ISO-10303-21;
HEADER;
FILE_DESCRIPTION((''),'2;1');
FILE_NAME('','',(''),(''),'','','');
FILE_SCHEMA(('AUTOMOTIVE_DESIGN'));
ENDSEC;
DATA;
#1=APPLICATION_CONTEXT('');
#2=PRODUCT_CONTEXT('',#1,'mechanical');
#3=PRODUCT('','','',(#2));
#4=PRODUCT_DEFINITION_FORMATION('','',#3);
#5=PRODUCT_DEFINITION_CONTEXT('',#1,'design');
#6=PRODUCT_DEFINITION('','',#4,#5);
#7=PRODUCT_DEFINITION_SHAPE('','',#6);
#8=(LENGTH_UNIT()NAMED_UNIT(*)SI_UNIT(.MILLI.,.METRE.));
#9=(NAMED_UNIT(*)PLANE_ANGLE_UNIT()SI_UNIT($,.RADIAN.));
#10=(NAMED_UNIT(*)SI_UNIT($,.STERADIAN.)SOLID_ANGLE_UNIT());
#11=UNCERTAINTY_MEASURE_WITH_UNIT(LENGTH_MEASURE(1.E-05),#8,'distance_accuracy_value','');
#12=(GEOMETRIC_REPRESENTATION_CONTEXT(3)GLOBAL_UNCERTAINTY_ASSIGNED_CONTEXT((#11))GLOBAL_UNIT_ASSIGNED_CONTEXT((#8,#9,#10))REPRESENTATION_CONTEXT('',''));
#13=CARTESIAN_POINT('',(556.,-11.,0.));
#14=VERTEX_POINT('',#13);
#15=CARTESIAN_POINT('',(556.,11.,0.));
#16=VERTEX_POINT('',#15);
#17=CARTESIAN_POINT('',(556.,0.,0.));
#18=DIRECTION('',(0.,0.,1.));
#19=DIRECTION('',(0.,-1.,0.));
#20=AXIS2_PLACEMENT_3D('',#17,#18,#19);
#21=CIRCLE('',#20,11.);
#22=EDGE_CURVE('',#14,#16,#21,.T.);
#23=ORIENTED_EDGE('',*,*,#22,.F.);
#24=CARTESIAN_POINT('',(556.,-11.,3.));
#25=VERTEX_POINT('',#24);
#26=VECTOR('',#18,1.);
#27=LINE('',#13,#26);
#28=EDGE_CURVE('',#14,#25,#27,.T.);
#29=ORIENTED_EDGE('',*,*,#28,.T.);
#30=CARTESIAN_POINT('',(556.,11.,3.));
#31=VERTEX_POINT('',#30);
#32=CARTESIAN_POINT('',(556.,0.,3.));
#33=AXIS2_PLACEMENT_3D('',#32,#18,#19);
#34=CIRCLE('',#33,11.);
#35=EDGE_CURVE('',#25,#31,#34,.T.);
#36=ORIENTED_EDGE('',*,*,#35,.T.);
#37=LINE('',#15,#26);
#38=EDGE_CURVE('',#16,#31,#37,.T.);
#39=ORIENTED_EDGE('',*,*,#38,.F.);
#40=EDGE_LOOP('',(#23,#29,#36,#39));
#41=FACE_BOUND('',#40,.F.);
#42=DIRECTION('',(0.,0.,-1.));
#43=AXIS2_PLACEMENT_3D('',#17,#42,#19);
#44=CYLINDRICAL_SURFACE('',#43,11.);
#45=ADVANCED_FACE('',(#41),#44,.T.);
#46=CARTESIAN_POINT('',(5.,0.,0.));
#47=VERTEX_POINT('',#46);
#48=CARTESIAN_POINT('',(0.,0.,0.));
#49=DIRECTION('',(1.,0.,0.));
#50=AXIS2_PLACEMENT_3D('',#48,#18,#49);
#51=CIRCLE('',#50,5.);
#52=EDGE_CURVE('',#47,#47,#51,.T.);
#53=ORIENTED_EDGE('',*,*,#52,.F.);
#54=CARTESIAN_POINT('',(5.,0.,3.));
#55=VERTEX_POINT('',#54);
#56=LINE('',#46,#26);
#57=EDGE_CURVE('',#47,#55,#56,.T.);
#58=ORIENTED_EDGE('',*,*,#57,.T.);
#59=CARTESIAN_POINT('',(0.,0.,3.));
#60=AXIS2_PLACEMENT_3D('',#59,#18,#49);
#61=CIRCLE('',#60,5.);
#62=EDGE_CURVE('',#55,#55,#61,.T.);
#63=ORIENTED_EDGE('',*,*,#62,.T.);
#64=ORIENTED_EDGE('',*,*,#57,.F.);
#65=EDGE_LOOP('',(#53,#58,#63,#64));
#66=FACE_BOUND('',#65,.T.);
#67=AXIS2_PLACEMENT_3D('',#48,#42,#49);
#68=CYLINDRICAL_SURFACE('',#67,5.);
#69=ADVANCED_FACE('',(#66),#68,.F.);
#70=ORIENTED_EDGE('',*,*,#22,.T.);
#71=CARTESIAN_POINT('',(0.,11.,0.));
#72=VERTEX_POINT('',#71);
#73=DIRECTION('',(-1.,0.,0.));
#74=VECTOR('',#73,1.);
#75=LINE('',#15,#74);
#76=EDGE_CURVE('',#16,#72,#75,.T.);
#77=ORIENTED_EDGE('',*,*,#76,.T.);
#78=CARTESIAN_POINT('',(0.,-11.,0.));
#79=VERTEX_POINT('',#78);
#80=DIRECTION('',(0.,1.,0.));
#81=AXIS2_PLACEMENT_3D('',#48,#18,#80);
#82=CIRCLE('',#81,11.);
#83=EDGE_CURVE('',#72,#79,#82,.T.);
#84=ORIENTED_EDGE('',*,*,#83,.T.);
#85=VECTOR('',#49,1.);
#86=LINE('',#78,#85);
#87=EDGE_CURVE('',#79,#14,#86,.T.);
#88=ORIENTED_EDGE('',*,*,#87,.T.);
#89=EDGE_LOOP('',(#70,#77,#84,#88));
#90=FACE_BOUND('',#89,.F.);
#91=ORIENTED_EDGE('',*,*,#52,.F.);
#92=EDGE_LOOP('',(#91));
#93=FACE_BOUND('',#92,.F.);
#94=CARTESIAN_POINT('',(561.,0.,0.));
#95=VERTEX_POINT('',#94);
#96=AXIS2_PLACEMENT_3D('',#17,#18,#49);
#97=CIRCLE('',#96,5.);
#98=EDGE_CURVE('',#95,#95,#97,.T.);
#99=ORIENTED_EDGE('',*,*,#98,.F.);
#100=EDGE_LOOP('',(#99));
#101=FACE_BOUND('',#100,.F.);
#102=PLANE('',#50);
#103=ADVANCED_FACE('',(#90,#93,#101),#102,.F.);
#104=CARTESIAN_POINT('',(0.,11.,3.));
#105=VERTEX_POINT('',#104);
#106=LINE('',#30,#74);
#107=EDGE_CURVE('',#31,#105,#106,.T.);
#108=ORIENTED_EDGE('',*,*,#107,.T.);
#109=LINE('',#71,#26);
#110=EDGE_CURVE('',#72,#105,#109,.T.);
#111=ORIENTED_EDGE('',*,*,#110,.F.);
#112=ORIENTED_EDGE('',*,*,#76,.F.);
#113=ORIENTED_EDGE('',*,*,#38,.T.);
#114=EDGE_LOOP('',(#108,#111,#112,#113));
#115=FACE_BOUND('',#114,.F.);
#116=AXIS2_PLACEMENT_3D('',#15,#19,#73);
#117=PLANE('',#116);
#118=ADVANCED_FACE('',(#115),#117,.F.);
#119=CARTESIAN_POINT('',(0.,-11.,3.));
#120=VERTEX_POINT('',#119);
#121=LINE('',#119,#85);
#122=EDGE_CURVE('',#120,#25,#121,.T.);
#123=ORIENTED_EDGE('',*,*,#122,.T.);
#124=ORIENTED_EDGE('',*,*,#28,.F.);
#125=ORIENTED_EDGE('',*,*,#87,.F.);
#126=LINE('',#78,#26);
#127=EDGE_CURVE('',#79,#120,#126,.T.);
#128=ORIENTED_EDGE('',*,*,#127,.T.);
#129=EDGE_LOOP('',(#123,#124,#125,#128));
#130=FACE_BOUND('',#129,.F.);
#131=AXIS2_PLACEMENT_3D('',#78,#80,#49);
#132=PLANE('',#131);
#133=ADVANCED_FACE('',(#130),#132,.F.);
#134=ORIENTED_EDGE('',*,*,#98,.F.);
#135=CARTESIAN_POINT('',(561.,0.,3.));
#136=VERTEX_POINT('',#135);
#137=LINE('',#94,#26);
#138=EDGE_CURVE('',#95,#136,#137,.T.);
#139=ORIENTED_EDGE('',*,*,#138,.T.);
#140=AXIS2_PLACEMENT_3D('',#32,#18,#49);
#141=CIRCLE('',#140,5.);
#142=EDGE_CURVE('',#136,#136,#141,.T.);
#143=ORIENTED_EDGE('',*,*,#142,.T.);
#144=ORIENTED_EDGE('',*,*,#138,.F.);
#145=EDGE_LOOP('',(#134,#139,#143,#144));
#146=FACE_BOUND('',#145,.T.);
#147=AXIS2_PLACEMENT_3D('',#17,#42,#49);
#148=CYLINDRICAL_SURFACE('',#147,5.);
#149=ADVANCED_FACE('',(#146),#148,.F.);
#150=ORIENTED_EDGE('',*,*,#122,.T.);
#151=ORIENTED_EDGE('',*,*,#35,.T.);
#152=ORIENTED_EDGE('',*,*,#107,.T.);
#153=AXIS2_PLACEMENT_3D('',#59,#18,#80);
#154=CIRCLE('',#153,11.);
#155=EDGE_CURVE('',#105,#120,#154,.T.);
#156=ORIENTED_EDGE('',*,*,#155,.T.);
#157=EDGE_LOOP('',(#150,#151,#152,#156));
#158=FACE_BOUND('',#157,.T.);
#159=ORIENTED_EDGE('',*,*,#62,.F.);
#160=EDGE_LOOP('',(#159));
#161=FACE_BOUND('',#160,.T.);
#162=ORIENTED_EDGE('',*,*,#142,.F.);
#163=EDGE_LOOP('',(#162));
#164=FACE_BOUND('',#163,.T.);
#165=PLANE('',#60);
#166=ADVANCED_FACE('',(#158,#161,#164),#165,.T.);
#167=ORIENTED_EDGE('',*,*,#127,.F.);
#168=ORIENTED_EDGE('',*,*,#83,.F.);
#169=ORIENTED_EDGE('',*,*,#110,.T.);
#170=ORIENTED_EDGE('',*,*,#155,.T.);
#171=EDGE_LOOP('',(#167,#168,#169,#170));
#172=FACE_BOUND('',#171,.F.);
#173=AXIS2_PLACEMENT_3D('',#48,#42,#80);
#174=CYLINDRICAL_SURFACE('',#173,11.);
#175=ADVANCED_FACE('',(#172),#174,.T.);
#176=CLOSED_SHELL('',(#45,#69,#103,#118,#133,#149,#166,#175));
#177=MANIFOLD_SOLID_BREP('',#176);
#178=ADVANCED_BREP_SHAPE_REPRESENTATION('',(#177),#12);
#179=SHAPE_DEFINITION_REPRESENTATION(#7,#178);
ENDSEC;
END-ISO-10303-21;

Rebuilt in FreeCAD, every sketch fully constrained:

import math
import FreeCAD as App
import Part
import Sketcher

doc = App.newDocument("Part")
body = doc.addObject("PartDesign::Body", "Body")

# Sketch on XY plane
sketch1 = doc.addObject("Sketcher::SketchObject", "Sketch")
body.addObject(sketch1)
sketch1.AttachmentSupport = (doc.XY_Plane, [""])
sketch1.MapMode = "FlatFace"
sketch1.addGeometry(Part.ArcOfCircle(Part.Circle(App.Vector(0, 0, 0), App.Vector(0, 0, 1), 11), math.radians(90), math.radians(270)), False)
sketch1.addGeometry(Part.LineSegment(App.Vector(0, -11, 0), App.Vector(556, -11, 0)), False)
sketch1.addGeometry(Part.ArcOfCircle(Part.Circle(App.Vector(556, 0, 0), App.Vector(0, 0, 1), 11), math.radians(-90), math.radians(90)), False)
sketch1.addGeometry(Part.LineSegment(App.Vector(556, 11, 0), App.Vector(0, 11, 0)), False)
sketch1.addGeometry(Part.Circle(App.Vector(0, 0, 0), App.Vector(0, 0, 1), 5), False)
sketch1.addGeometry(Part.Circle(App.Vector(556, 0, 0), App.Vector(0, 0, 1), 5), False)
sketch1.addConstraint(Sketcher.Constraint("Tangent", 0, 2, 1, 1))
sketch1.addConstraint(Sketcher.Constraint("Tangent", 1, 2, 2, 1))
sketch1.addConstraint(Sketcher.Constraint("Tangent", 2, 2, 3, 1))
sketch1.addConstraint(Sketcher.Constraint("Tangent", 3, 2, 0, 1))
sketch1.addConstraint(Sketcher.Constraint("Horizontal", 1))
sketch1.addConstraint(Sketcher.Constraint("Horizontal", 3))
sketch1.addConstraint(Sketcher.Constraint("Coincident", 0, 3, -1, 1))
sketch1.addConstraint(Sketcher.Constraint("Coincident", 4, 3, -1, 1))
sketch1.addConstraint(Sketcher.Constraint("Coincident", 5, 3, 2, 3))
sketch1.addConstraint(Sketcher.Constraint("Equal", 4, 5))
sketch1.addConstraint(Sketcher.Constraint("Diameter", 4, 10.0))
sketch1.addConstraint(Sketcher.Constraint("Radius", 0, 11.0))
sketch1.addConstraint(Sketcher.Constraint("DistanceX", 1, 1, 1, 2, 556.0))
pad1 = doc.addObject("PartDesign::Pad", "Pad")
body.addObject(pad1)
pad1.Profile = sketch1
pad1.Length = 3

doc.recompute()
